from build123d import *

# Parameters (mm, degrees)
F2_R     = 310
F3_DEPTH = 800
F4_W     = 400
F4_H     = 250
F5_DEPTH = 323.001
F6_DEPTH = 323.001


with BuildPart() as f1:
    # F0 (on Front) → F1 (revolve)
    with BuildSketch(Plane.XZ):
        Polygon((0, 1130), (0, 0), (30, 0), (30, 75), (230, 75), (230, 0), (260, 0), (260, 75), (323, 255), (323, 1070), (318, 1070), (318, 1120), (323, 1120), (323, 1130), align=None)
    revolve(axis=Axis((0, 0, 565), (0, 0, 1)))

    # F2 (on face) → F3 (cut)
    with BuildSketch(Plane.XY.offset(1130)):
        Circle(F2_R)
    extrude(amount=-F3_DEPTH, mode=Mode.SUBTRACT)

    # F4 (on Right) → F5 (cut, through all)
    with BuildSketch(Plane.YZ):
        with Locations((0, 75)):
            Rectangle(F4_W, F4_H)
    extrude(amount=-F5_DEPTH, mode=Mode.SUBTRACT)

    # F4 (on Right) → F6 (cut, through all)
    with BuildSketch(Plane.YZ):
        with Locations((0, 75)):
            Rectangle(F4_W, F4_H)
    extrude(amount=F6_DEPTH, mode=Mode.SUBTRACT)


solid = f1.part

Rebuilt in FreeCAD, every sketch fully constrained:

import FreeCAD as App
import Part
import Sketcher
from FreeCAD import Vector
Q = App.Units.Quantity


def add_polygon(sketch, points):
    """Adds a closed chain of lines whose ends are joined by coincident constraints."""
    first, n = sketch.GeometryCount, len(points)
    for a, b in zip(points, points[1:] + points[:1]):
        sketch.addGeometry(Part.LineSegment(App.Vector(*a, 0), App.Vector(*b, 0)), False)
    for i in range(n):
        sketch.addConstraint(Sketcher.Constraint("Coincident", first + i, 2, first + (i + 1) % n, 1))

doc = App.newDocument("Part")
params = doc.addObject("Spreadsheet::Sheet", "Params")
for row, (alias, value) in enumerate([
    ("sketch1_width", "30 mm"),
    ("sketch1_width2", "200 mm"),
    ("sketch1_width3", "5 mm"),
    ("sketch1_width4", "323 mm"),
    ("sketch1_height", "1130 mm"),
    ("revolution_angle", "360 deg"),
    ("sketch2_diameter", "620 mm"),
    ("pocket1_length", "800 mm"),
    ("sketch3_width", "400 mm"),
    ("sketch3_height", "250 mm"),
    ("sketch4_width", "400 mm"),
    ("sketch4_height", "250 mm"),
], start=1):
    params.set(f"A{row}", alias)
    params.set(f"B{row}", "=" + value)
    params.setAlias(f"B{row}", alias)

body = doc.addObject("PartDesign::Body", "Body")

sketch1 = body.newObject("Sketcher::SketchObject", "Sketch")
sketch1.AttachmentSupport = (doc.getObject("XZ_Plane"), [""])
sketch1.MapMode = "FlatFace"
add_polygon(sketch1, [(0, 1130), (0, 0), (30, 0), (30, 75), (230, 75), (230, 0), (260, 0), (260, 75), (323, 255), (323, 1070), (318, 1070), (318, 1120), (323, 1120), (323, 1130)])
sketch1.addConstraint(Sketcher.Constraint("Vertical", 0))
sketch1.addConstraint(Sketcher.Constraint("Horizontal", 1))
sketch1.addConstraint(Sketcher.Constraint("Vertical", 2))
sketch1.addConstraint(Sketcher.Constraint("Horizontal", 3))
sketch1.addConstraint(Sketcher.Constraint("Vertical", 4))
sketch1.addConstraint(Sketcher.Constraint("Horizontal", 5))
sketch1.addConstraint(Sketcher.Constraint("Vertical", 6))
sketch1.addConstraint(Sketcher.Constraint("Vertical", 8))
sketch1.addConstraint(Sketcher.Constraint("Horizontal", 9))
sketch1.addConstraint(Sketcher.Constraint("Vertical", 10))
sketch1.addConstraint(Sketcher.Constraint("Horizontal", 11))
sketch1.addConstraint(Sketcher.Constraint("Vertical", 12))
sketch1.addConstraint(Sketcher.Constraint("Horizontal", 13))
sketch1.addConstraint(Sketcher.Constraint("Coincident", 0, 2, -1, 1))
sketch1.addConstraint(Sketcher.Constraint("PointOnObject", 4, 2, -1))
sketch1.addConstraint(Sketcher.Constraint("Horizontal", 3, 2, 6, 2))
sketch1.addConstraint(Sketcher.Constraint("Vertical", 8, 2, 11, 2))
sketch1.addConstraint(Sketcher.Constraint("Equal", 1, 5))
sketch1.addConstraint(Sketcher.Constraint("DistanceX", 1, 1, 1, 2, Q("30 mm")))
sketch1.addConstraint(Sketcher.Constraint("DistanceX", 3, 1, 3, 2, Q("200 mm")))
sketch1.addConstraint(Sketcher.Constraint("DistanceX", 9, 2, 9, 1, Q("5 mm")))
sketch1.addConstraint(Sketcher.Constraint("DistanceX", 13, 2, 13, 1, Q("323 mm")))
sketch1.addConstraint(Sketcher.Constraint("DistanceY", 0, 2, 0, 1, Q("1130 mm")))
sketch1.addConstraint(Sketcher.Constraint("DistanceY", 2, 1, 2, 2, Q("75 mm")))
sketch1.addConstraint(Sketcher.Constraint("DistanceY", 8, 1, 8, 2, Q("815 mm")))
sketch1.addConstraint(Sketcher.Constraint("DistanceY", 10, 1, 10, 2, Q("50 mm")))
sketch1.addConstraint(Sketcher.Constraint("DistanceY", 12, 1, 12, 2, Q("10 mm")))
sketch1.setExpression("Constraints[32]", "Params.sketch1_width")
sketch1.setExpression("Constraints[33]", "Params.sketch1_width2")
sketch1.setExpression("Constraints[34]", "Params.sketch1_width3")
sketch1.setExpression("Constraints[35]", "Params.sketch1_width4")
sketch1.setExpression("Constraints[36]", "Params.sketch1_height")
revolution = body.newObject("PartDesign::Revolution", "Revolution")
revolution.Profile = sketch1
revolution.ReferenceAxis = (sketch1, ["V_Axis"])
revolution.setExpression("Angle", "Params.revolution_angle")

sketch2 = body.newObject("Sketcher::SketchObject", "Sketch001")
sketch2.AttachmentSupport = (doc.getObject("XY_Plane"), [""])
sketch2.MapMode = "FlatFace"
sketch2.AttachmentOffset = App.Placement(Vector(0, 0, 1130), App.Rotation())
sketch2.addGeometry(Part.Circle(Vector(0, 0, 0), Vector(0, 0, 1), 310), False)
sketch2.addConstraint(Sketcher.Constraint("Coincident", 0, 3, -1, 1))
sketch2.addConstraint(Sketcher.Constraint("Diameter", 0, Q("620 mm")))
sketch2.setExpression("Constraints[1]", "Params.sketch2_diameter")
pocket1 = body.newObject("PartDesign::Pocket", "Pocket")
pocket1.Profile = sketch2
pocket1.setExpression("Length", "Params.pocket1_length")

sketch3 = body.newObject("Sketcher::SketchObject", "Sketch002")
sketch3.AttachmentSupport = (doc.getObject("YZ_Plane"), [""])
sketch3.MapMode = "FlatFace"
add_polygon(sketch3, [(-200, 200), (-200, -50), (200, -50), (200, 200)])
sketch3.addConstraint(Sketcher.Constraint("Vertical", 0))
sketch3.addConstraint(Sketcher.Constraint("Horizontal", 1))
sketch3.addConstraint(Sketcher.Constraint("Vertical", 2))
sketch3.addConstraint(Sketcher.Constraint("Horizontal", 3))
sketch3.addConstraint(Sketcher.Constraint("DistanceX", 1, 1, 1, 2, Q("400 mm")))
sketch3.addConstraint(Sketcher.Constraint("DistanceY", 0, 2, 0, 1, Q("250 mm")))
sketch3.addConstraint(Sketcher.Constraint("DistanceX", 0, 2, -1, 1, Q("200 mm")))
sketch3.addConstraint(Sketcher.Constraint("DistanceY", 0, 2, -1, 1, Q("50 mm")))
sketch3.setExpression("Constraints[8]", "Params.sketch3_width")
sketch3.setExpression("Constraints[9]", "Params.sketch3_height")
pocket2 = body.newObject("PartDesign::Pocket", "Pocket001")
pocket2.Profile = sketch3
pocket2.Type = "ThroughAll"

sketch4 = body.newObject("Sketcher::SketchObject", "Sketch003")
sketch4.AttachmentSupport = (doc.getObject("YZ_Plane"), [""])
sketch4.MapMode = "FlatFace"
add_polygon(sketch4, [(-200, 200), (-200, -50), (200, -50), (200, 200)])
sketch4.addConstraint(Sketcher.Constraint("Vertical", 0))
sketch4.addConstraint(Sketcher.Constraint("Horizontal", 1))
sketch4.addConstraint(Sketcher.Constraint("Vertical", 2))
sketch4.addConstraint(Sketcher.Constraint("Horizontal", 3))
sketch4.addConstraint(Sketcher.Constraint("DistanceX", 1, 1, 1, 2, Q("400 mm")))
sketch4.addConstraint(Sketcher.Constraint("DistanceY", 0, 2, 0, 1, Q("250 mm")))
sketch4.addConstraint(Sketcher.Constraint("DistanceX", 0, 2, -1, 1, Q("200 mm")))
sketch4.addConstraint(Sketcher.Constraint("DistanceY", 0, 2, -1, 1, Q("50 mm")))
sketch4.setExpression("Constraints[8]", "Params.sketch4_width")
sketch4.setExpression("Constraints[9]", "Params.sketch4_height")
pocket3 = body.newObject("PartDesign::Pocket", "Pocket002")
pocket3.Profile = sketch4
pocket3.Type = "ThroughAll"
pocket3.Reversed = True

doc.recompute()
